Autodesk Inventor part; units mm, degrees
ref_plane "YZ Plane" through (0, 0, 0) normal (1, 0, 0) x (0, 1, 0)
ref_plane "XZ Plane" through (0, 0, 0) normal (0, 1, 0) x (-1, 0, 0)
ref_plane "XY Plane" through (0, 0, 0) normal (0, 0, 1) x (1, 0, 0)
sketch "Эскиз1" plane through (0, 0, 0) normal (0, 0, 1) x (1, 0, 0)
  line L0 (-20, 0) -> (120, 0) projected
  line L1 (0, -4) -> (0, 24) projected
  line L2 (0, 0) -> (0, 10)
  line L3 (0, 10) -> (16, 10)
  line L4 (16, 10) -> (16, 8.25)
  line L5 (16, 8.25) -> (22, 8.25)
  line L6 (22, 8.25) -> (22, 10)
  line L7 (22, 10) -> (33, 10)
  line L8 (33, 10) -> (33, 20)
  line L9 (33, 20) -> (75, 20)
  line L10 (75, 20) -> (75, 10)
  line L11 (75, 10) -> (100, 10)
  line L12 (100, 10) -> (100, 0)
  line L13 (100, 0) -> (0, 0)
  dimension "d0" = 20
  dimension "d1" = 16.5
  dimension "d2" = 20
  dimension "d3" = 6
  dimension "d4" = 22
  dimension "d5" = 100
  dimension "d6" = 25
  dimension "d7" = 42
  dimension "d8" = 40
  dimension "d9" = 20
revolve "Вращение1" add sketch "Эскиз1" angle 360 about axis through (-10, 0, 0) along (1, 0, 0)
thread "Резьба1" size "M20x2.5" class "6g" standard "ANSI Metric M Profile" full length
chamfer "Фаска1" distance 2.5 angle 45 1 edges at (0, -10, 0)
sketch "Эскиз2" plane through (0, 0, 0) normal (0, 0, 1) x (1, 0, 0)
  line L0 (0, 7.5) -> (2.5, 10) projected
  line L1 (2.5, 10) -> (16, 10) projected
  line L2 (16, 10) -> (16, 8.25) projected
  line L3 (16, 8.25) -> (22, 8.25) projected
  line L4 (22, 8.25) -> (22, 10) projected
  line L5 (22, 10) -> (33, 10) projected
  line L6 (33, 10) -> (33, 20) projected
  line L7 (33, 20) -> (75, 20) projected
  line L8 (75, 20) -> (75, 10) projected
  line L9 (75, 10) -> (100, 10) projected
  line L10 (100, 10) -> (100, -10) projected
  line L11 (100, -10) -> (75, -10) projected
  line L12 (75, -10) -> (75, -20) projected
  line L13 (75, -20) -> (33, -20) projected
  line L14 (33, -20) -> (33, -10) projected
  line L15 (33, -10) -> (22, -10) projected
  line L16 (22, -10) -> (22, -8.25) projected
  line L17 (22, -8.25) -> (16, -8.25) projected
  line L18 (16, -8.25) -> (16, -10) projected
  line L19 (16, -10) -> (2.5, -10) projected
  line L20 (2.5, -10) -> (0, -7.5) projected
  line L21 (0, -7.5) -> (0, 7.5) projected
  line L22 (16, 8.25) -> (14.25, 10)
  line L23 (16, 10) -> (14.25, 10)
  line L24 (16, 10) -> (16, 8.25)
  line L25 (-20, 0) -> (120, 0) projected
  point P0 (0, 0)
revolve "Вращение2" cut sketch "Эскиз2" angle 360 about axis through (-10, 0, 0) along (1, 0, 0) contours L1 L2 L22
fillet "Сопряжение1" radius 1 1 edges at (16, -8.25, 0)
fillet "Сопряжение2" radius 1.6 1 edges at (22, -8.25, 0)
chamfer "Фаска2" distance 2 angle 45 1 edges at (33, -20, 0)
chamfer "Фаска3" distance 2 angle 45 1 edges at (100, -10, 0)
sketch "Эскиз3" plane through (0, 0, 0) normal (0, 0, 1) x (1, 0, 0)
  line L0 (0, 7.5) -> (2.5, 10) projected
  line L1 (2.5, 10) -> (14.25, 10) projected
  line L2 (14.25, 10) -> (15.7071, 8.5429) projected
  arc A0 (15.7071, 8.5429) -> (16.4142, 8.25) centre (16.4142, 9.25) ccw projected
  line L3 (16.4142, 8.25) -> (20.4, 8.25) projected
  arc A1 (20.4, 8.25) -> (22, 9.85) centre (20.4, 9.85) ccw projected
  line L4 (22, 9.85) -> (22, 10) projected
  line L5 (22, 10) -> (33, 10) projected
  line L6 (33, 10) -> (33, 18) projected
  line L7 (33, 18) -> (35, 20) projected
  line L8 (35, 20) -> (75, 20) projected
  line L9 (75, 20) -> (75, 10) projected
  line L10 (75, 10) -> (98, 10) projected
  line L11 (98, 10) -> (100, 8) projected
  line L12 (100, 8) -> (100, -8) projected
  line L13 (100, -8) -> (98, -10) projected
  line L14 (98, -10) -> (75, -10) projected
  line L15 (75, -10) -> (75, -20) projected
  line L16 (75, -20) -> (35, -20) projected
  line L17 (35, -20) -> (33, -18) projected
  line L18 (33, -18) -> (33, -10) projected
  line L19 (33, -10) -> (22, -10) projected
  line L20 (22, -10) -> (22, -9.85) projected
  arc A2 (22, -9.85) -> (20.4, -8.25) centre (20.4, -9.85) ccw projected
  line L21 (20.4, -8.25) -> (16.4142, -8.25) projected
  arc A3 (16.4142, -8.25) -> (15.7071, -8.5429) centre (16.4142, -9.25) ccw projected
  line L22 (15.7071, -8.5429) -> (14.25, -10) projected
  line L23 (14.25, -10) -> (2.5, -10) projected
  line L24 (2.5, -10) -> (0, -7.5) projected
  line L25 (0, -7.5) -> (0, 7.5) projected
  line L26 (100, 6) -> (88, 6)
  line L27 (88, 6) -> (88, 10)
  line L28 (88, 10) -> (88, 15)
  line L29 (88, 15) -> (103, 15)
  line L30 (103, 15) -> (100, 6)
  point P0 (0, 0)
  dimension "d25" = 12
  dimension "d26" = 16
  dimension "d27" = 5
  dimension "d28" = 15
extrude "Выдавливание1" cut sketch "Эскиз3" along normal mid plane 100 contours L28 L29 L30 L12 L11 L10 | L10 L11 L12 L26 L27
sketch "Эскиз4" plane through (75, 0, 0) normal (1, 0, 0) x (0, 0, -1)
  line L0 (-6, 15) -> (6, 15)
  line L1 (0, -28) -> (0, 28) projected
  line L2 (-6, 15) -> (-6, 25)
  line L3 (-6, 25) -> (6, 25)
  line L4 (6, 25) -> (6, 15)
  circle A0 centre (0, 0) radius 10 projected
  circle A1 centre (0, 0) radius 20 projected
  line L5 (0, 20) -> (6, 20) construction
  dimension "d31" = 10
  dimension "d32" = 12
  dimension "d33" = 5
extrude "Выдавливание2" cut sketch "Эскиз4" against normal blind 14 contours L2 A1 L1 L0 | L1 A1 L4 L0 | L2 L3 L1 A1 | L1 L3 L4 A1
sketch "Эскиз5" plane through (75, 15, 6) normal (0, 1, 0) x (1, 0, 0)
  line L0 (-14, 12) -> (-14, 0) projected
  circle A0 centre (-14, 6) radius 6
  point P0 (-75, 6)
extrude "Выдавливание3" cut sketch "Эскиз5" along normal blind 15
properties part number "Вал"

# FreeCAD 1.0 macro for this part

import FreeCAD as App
import Part
import Sketcher
from FreeCAD import Vector
Q = App.Units.Quantity


def edges_at(feature, points):
    """Names of the edges that pass closest to the given points."""
    edges = feature.Shape.Edges
    near = lambda p: min(range(len(edges)), key=lambda i: edges[i].distToShape(Part.Vertex(*p))[0])
    return sorted({f"Edge{near(p) + 1}" for p in points})


def add_polygon(sketch, points):
    """Adds a closed chain of lines whose ends are joined by coincident constraints."""
    first, n = sketch.GeometryCount, len(points)
    for a, b in zip(points, points[1:] + points[:1]):
        sketch.addGeometry(Part.LineSegment(App.Vector(*a, 0), App.Vector(*b, 0)), False)
    for i in range(n):
        sketch.addConstraint(Sketcher.Constraint("Coincident", first + i, 2, first + (i + 1) % n, 1))

doc = App.newDocument("Part")
body = doc.addObject("PartDesign::Body", "Body")

# Sketch on XY plane
sketch1 = body.newObject("Sketcher::SketchObject", "Sketch")
sketch1.AttachmentSupport = (doc.getObject("XY_Plane"), [""])
sketch1.MapMode = "FlatFace"
add_polygon(sketch1, [(0, 10), (0, 0), (100, 0), (100, 10), (75, 10), (75, 20), (33, 20), (33, 10), (22, 10), (22, 8.25), (16, 8.25), (16, 10)])  # lines 0-11
sketch1.addConstraint([
    Sketcher.Constraint("Vertical", 0),
    Sketcher.Constraint("Horizontal", 1),
    Sketcher.Constraint("Vertical", 2),
    Sketcher.Constraint("Horizontal", 3),
    Sketcher.Constraint("Vertical", 4),
    Sketcher.Constraint("Horizontal", 5),
    Sketcher.Constraint("Vertical", 6),
    Sketcher.Constraint("Horizontal", 7),
    Sketcher.Constraint("Vertical", 8),
    Sketcher.Constraint("Horizontal", 9),
    Sketcher.Constraint("Vertical", 10),
    Sketcher.Constraint("Horizontal", 11),
    Sketcher.Constraint("Coincident", 0, 2, -1, 1),
    Sketcher.Constraint("Horizontal", 3, 2, 6, 2),
    Sketcher.Constraint("Horizontal", 7, 2, 10, 2),
    Sketcher.Constraint("Equal", 2, 4),
    Sketcher.Constraint("DistanceX", 1, 1, 1, 2, Q("100 mm")),
    Sketcher.Constraint("DistanceX", 3, 2, 3, 1, Q("25 mm")),
    Sketcher.Constraint("DistanceX", 5, 2, 5, 1, Q("42 mm")),
    Sketcher.Constraint("DistanceX", 9, 2, 9, 1, Q("6 mm")),
    Sketcher.Constraint("DistanceY", -1, 1, 4, 2, Q("20 mm")),
    Sketcher.Constraint("DistanceX", -1, 1, 7, 2, Q("22 mm")),
    Sketcher.Constraint("DistanceY", 8, 2, 8, 1, Q("1.75 mm")),
])
revolution = body.newObject("PartDesign::Revolution", "Revolution")
revolution.Profile = sketch1
revolution.ReferenceAxis = (sketch1, ["H_Axis"])
revolution.Angle = 360
doc.recompute()

chamfer = body.newObject("PartDesign::Chamfer", "Chamfer")
chamfer.Base = (revolution, edges_at(revolution, [(0, -10, 0)]))
chamfer.Size = 2.5

# Sketch on XY plane
sketch2 = body.newObject("Sketcher::SketchObject", "Sketch001")
sketch2.AttachmentSupport = (doc.getObject("XY_Plane"), [""])
sketch2.MapMode = "FlatFace"
add_polygon(sketch2, [(16, 10), (14.25, 10), (16, 8.25)])  # lines 0-2
sketch2.addConstraint([
    Sketcher.Constraint("Horizontal", 0),
    Sketcher.Constraint("Vertical", 2),
    Sketcher.Constraint("Equal", 0, 2),
    Sketcher.Constraint("DistanceY", -1, 1, 0, 2, Q("10 mm")),
    Sketcher.Constraint("DistanceX", -1, 1, 1, 2, Q("16 mm")),
    Sketcher.Constraint("DistanceX", 0, 2, 0, 1, Q("1.75 mm")),
])
groove = body.newObject("PartDesign::Groove", "Groove")
groove.Profile = sketch2
groove.ReferenceAxis = (sketch2, ["H_Axis"])
groove.Angle = 360
doc.recompute()

fillet = body.newObject("PartDesign::Fillet", "Fillet")
fillet.Base = (groove, edges_at(groove, [(16, -8.25, 0)]))
fillet.Radius = 1
doc.recompute()

fillet2 = body.newObject("PartDesign::Fillet", "Fillet001")
fillet2.Base = (fillet, edges_at(fillet, [(22, -8.25, 0)]))
fillet2.Radius = 1.6
doc.recompute()

chamfer2 = body.newObject("PartDesign::Chamfer", "Chamfer001")
chamfer2.Base = (fillet2, edges_at(fillet2, [(33, -20, 0)]))
chamfer2.Size = 2
doc.recompute()

chamfer3 = body.newObject("PartDesign::Chamfer", "Chamfer002")
chamfer3.Base = (chamfer2, edges_at(chamfer2, [(100, -10, 0)]))
chamfer3.Size = 2

# Sketch on XY plane
sketch3 = body.newObject("Sketcher::SketchObject", "Sketch002")
sketch3.AttachmentSupport = (doc.getObject("XY_Plane"), [""])
sketch3.MapMode = "FlatFace"
add_polygon(sketch3, [(88, 15), (88, 6), (100, 6), (103, 15)])  # lines 0-3
sketch3.addConstraint([
    Sketcher.Constraint("Vertical", 0),
    Sketcher.Constraint("Horizontal", 1),
    Sketcher.Constraint("Horizontal", 3),
    Sketcher.Constraint("DistanceX", 1, 1, 1, 2, Q("12 mm")),
    Sketcher.Constraint("DistanceX", 3, 2, 3, 1, Q("15 mm")),
    Sketcher.Constraint("DistanceY", -1, 1, 2, 2, Q("15 mm")),
    Sketcher.Constraint("DistanceY", 0, 2, 0, 1, Q("9 mm")),
    Sketcher.Constraint("DistanceX", -1, 1, 0, 2, Q("88 mm")),
])
pocket1 = body.newObject("PartDesign::Pocket", "Pocket")
pocket1.Profile = sketch3
pocket1.Length = 100
pocket1.Midplane = True

# Sketch on YZ plane
sketch4 = body.newObject("Sketcher::SketchObject", "Sketch003")
sketch4.AttachmentSupport = (doc.getObject("YZ_Plane"), [""])
sketch4.MapMode = "FlatFace"
sketch4.AttachmentOffset = App.Placement(Vector(0, 0, 75), App.Rotation())
add_polygon(sketch4, [(15, 6), (15, -6), (25, -6), (25, 6)])  # lines 0-3
sketch4.addConstraint([
    Sketcher.Constraint("Vertical", 0),
    Sketcher.Constraint("Horizontal", 1),
    Sketcher.Constraint("Vertical", 2),
    Sketcher.Constraint("Horizontal", 3),
    Sketcher.Constraint("DistanceX", 1, 1, 1, 2, Q("10 mm")),
    Sketcher.Constraint("DistanceY", 0, 2, 0, 1, Q("12 mm")),
    Sketcher.Constraint("DistanceX", -1, 1, 0, 2, Q("15 mm")),
    Sketcher.Constraint("DistanceY", 0, 2, -1, 1, Q("6 mm")),
])
pocket2 = body.newObject("PartDesign::Pocket", "Pocket001")
pocket2.Profile = sketch4
pocket2.Length = 14

# Sketch on XZ plane
sketch5 = body.newObject("Sketcher::SketchObject", "Sketch004")
sketch5.AttachmentSupport = (doc.getObject("XZ_Plane"), [""])
sketch5.MapMode = "FlatFace"
sketch5.AttachmentOffset = App.Placement(Vector(0, 0, -15), App.Rotation())
sketch5.addGeometry(Part.Circle(Vector(61, 0, 0), Vector(0, 0, 1), 6), False)
sketch5.addConstraint([
    Sketcher.Constraint("PointOnObject", 0, 3, -1),
    Sketcher.Constraint("Diameter", 0, Q("12 mm")),
    Sketcher.Constraint("DistanceX", -1, 1, 0, 3, Q("61 mm")),
])
pocket3 = body.newObject("PartDesign::Pocket", "Pocket002")
pocket3.Profile = sketch5
pocket3.Length = 15

doc.recompute()
